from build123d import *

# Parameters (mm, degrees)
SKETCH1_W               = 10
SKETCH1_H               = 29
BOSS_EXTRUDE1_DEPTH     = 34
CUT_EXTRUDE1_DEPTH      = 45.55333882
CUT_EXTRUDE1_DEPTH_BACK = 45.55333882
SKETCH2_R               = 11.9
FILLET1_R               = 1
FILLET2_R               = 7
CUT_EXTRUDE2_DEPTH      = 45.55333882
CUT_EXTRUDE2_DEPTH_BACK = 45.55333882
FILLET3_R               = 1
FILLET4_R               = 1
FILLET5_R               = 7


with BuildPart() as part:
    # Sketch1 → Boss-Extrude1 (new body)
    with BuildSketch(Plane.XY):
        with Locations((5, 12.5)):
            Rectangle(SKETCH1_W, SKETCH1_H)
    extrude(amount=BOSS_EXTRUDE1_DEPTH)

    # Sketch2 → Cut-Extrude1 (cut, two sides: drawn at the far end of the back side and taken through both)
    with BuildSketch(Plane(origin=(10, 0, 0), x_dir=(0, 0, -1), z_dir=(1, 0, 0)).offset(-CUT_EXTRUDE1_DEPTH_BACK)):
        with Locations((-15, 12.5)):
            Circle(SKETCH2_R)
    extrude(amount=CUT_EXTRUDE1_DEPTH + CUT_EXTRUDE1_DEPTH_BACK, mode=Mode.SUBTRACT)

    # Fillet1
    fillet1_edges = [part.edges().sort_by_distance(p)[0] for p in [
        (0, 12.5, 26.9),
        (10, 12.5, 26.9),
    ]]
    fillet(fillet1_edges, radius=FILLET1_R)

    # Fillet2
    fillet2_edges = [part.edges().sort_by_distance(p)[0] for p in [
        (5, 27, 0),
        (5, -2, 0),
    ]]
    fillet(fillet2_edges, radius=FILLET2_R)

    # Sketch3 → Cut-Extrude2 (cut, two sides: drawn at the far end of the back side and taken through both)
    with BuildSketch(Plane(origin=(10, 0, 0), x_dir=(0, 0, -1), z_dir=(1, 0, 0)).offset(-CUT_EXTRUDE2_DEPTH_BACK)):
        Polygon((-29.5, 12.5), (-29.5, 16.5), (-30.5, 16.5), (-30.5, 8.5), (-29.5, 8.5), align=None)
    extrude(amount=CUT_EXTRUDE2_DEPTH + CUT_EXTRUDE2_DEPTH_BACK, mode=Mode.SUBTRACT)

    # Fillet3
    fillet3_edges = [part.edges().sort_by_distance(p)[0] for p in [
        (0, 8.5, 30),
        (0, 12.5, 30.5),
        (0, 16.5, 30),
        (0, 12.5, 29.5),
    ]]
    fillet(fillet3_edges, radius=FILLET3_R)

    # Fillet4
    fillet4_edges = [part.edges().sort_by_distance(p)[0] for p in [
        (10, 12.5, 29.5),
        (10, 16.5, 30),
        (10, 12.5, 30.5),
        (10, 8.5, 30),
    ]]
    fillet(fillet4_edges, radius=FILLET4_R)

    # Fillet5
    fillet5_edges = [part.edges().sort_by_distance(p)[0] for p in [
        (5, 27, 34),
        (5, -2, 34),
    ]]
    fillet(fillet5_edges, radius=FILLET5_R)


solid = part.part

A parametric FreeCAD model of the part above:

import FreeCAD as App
import Part
import Sketcher
Q = App.Units.Quantity


def edges_at(feature, points):
    """Names of the edges that pass closest to the given points."""
    edges = feature.Shape.Edges
    near = lambda p: min(range(len(edges)), key=lambda i: edges[i].distToShape(Part.Vertex(*p))[0])
    return sorted({f"Edge{near(p) + 1}" for p in points})

doc = App.newDocument("Part")
body = doc.addObject("PartDesign::Body", "Body")

# Sketch on XY plane
sketch1 = body.newObject("Sketcher::SketchObject", "Sketch")
sketch1.AttachmentSupport = (doc.getObject("XY_Plane"), [""])
sketch1.MapMode = "FlatFace"
sketch1.addGeometry(Part.LineSegment(App.Vector(0, 27, 0), App.Vector(0, -2, 0)), False)
sketch1.addGeometry(Part.LineSegment(App.Vector(0, -2, 0), App.Vector(10, -2, 0)), False)
sketch1.addGeometry(Part.LineSegment(App.Vector(10, -2, 0), App.Vector(10, 27, 0)), False)
sketch1.addGeometry(Part.LineSegment(App.Vector(10, 27, 0), App.Vector(0, 27, 0)), False)
sketch1.addConstraint(Sketcher.Constraint("Coincident", 0, 2, 1, 1))
sketch1.addConstraint(Sketcher.Constraint("Coincident", 1, 2, 2, 1))
sketch1.addConstraint(Sketcher.Constraint("Coincident", 2, 2, 3, 1))
sketch1.addConstraint(Sketcher.Constraint("Coincident", 3, 2, 0, 1))
sketch1.addConstraint(Sketcher.Constraint("Vertical", 0))
sketch1.addConstraint(Sketcher.Constraint("Horizontal", 1))
sketch1.addConstraint(Sketcher.Constraint("Vertical", 2))
sketch1.addConstraint(Sketcher.Constraint("Horizontal", 3))
sketch1.addConstraint(Sketcher.Constraint("PointOnObject", 0, 2, -2))
sketch1.addConstraint(Sketcher.Constraint("DistanceX", 1, 1, 1, 2, Q("10 mm")))
sketch1.addConstraint(Sketcher.Constraint("DistanceY", 0, 2, 0, 1, Q("29 mm")))
sketch1.addConstraint(Sketcher.Constraint("DistanceY", 0, 2, -1, 1, Q("2 mm")))
pad1 = body.newObject("PartDesign::Pad", "Pad")
pad1.Profile = sketch1
pad1.Length = 34

# Sketch on YZ plane
sketch2 = body.newObject("Sketcher::SketchObject", "Sketch001")
sketch2.AttachmentSupport = (doc.getObject("YZ_Plane"), [""])
sketch2.MapMode = "FlatFace"
sketch2.AttachmentOffset = App.Placement(App.Vector(0, 0, 10), App.Rotation())
sketch2.addGeometry(Part.Circle(App.Vector(12.5, 15, 0), App.Vector(0, 0, 1), 11.9), False)
sketch2.addConstraint(Sketcher.Constraint("Diameter", 0, Q("23.8 mm")))
sketch2.addConstraint(Sketcher.Constraint("DistanceY", -1, 1, 0, 3, Q("15 mm")))
sketch2.addConstraint(Sketcher.Constraint("DistanceX", -1, 1, 0, 3, Q("12.5 mm")))
pocket1 = body.newObject("PartDesign::Pocket", "Pocket")
pocket1.Profile = sketch2
pocket1.Type = "ThroughAll"
pocket1.Midplane = True
doc.recompute()

fillet = body.newObject("PartDesign::Fillet", "Fillet")
fillet.Base = (pocket1, edges_at(pocket1, [(0, 12.5, 26.9), (10, 12.5, 26.9)]))
fillet.Radius = 1
doc.recompute()

fillet2 = body.newObject("PartDesign::Fillet", "Fillet001")
fillet2.Base = (fillet, edges_at(fillet, [(5, 27, 0), (5, -2, 0)]))
fillet2.Radius = 7

# Sketch on YZ plane
sketch3 = body.newObject("Sketcher::SketchObject", "Sketch002")
sketch3.AttachmentSupport = (doc.getObject("YZ_Plane"), [""])
sketch3.MapMode = "FlatFace"
sketch3.AttachmentOffset = App.Placement(App.Vector(0, 0, 10), App.Rotation())
sketch3.addGeometry(Part.LineSegment(App.Vector(16.5, 29.5, 0), App.Vector(16.5, 30.5, 0)), False)
sketch3.addGeometry(Part.LineSegment(App.Vector(16.5, 30.5, 0), App.Vector(8.5, 30.5, 0)), False)
sketch3.addGeometry(Part.LineSegment(App.Vector(8.5, 30.5, 0), App.Vector(8.5, 29.5, 0)), False)
sketch3.addGeometry(Part.LineSegment(App.Vector(8.5, 29.5, 0), App.Vector(16.5, 29.5, 0)), False)
sketch3.addConstraint(Sketcher.Constraint("Coincident", 0, 2, 1, 1))
sketch3.addConstraint(Sketcher.Constraint("Coincident", 1, 2, 2, 1))
sketch3.addConstraint(Sketcher.Constraint("Coincident", 2, 2, 3, 1))
sketch3.addConstraint(Sketcher.Constraint("Coincident", 3, 2, 0, 1))
sketch3.addConstraint(Sketcher.Constraint("Vertical", 0))
sketch3.addConstraint(Sketcher.Constraint("Horizontal", 1))
sketch3.addConstraint(Sketcher.Constraint("Vertical", 2))
sketch3.addConstraint(Sketcher.Constraint("Horizontal", 3))
sketch3.addConstraint(Sketcher.Constraint("DistanceX", 1, 2, 1, 1, Q("8 mm")))
sketch3.addConstraint(Sketcher.Constraint("DistanceY", 0, 1, 0, 2, Q("1 mm")))
sketch3.addConstraint(Sketcher.Constraint("DistanceX", -1, 1, 0, 2, Q("16.5 mm")))
sketch3.addConstraint(Sketcher.Constraint("DistanceY", -1, 1, 0, 2, Q("30.5 mm")))
pocket2 = body.newObject("PartDesign::Pocket", "Pocket001")
pocket2.Profile = sketch3
pocket2.Type = "ThroughAll"
pocket2.Midplane = True
doc.recompute()

fillet3 = body.newObject("PartDesign::Fillet", "Fillet002")
fillet3.Base = (pocket2, edges_at(pocket2, [
    (0, 8.5, 30),
    (0, 12.5, 30.5),
    (0, 16.5, 30),
    (0, 12.5, 29.5),
]))
fillet3.Radius = 1
doc.recompute()

fillet4 = body.newObject("PartDesign::Fillet", "Fillet003")
fillet4.Base = (fillet3, edges_at(fillet3, [
    (10, 12.5, 29.5),
    (10, 16.5, 30),
    (10, 12.5, 30.5),
    (10, 8.5, 30),
]))
fillet4.Radius = 1
doc.recompute()

fillet5 = body.newObject("PartDesign::Fillet", "Fillet004")
fillet5.Base = (fillet4, edges_at(fillet4, [(5, 27, 34), (5, -2, 34)]))
fillet5.Radius = 7

doc.recompute()
